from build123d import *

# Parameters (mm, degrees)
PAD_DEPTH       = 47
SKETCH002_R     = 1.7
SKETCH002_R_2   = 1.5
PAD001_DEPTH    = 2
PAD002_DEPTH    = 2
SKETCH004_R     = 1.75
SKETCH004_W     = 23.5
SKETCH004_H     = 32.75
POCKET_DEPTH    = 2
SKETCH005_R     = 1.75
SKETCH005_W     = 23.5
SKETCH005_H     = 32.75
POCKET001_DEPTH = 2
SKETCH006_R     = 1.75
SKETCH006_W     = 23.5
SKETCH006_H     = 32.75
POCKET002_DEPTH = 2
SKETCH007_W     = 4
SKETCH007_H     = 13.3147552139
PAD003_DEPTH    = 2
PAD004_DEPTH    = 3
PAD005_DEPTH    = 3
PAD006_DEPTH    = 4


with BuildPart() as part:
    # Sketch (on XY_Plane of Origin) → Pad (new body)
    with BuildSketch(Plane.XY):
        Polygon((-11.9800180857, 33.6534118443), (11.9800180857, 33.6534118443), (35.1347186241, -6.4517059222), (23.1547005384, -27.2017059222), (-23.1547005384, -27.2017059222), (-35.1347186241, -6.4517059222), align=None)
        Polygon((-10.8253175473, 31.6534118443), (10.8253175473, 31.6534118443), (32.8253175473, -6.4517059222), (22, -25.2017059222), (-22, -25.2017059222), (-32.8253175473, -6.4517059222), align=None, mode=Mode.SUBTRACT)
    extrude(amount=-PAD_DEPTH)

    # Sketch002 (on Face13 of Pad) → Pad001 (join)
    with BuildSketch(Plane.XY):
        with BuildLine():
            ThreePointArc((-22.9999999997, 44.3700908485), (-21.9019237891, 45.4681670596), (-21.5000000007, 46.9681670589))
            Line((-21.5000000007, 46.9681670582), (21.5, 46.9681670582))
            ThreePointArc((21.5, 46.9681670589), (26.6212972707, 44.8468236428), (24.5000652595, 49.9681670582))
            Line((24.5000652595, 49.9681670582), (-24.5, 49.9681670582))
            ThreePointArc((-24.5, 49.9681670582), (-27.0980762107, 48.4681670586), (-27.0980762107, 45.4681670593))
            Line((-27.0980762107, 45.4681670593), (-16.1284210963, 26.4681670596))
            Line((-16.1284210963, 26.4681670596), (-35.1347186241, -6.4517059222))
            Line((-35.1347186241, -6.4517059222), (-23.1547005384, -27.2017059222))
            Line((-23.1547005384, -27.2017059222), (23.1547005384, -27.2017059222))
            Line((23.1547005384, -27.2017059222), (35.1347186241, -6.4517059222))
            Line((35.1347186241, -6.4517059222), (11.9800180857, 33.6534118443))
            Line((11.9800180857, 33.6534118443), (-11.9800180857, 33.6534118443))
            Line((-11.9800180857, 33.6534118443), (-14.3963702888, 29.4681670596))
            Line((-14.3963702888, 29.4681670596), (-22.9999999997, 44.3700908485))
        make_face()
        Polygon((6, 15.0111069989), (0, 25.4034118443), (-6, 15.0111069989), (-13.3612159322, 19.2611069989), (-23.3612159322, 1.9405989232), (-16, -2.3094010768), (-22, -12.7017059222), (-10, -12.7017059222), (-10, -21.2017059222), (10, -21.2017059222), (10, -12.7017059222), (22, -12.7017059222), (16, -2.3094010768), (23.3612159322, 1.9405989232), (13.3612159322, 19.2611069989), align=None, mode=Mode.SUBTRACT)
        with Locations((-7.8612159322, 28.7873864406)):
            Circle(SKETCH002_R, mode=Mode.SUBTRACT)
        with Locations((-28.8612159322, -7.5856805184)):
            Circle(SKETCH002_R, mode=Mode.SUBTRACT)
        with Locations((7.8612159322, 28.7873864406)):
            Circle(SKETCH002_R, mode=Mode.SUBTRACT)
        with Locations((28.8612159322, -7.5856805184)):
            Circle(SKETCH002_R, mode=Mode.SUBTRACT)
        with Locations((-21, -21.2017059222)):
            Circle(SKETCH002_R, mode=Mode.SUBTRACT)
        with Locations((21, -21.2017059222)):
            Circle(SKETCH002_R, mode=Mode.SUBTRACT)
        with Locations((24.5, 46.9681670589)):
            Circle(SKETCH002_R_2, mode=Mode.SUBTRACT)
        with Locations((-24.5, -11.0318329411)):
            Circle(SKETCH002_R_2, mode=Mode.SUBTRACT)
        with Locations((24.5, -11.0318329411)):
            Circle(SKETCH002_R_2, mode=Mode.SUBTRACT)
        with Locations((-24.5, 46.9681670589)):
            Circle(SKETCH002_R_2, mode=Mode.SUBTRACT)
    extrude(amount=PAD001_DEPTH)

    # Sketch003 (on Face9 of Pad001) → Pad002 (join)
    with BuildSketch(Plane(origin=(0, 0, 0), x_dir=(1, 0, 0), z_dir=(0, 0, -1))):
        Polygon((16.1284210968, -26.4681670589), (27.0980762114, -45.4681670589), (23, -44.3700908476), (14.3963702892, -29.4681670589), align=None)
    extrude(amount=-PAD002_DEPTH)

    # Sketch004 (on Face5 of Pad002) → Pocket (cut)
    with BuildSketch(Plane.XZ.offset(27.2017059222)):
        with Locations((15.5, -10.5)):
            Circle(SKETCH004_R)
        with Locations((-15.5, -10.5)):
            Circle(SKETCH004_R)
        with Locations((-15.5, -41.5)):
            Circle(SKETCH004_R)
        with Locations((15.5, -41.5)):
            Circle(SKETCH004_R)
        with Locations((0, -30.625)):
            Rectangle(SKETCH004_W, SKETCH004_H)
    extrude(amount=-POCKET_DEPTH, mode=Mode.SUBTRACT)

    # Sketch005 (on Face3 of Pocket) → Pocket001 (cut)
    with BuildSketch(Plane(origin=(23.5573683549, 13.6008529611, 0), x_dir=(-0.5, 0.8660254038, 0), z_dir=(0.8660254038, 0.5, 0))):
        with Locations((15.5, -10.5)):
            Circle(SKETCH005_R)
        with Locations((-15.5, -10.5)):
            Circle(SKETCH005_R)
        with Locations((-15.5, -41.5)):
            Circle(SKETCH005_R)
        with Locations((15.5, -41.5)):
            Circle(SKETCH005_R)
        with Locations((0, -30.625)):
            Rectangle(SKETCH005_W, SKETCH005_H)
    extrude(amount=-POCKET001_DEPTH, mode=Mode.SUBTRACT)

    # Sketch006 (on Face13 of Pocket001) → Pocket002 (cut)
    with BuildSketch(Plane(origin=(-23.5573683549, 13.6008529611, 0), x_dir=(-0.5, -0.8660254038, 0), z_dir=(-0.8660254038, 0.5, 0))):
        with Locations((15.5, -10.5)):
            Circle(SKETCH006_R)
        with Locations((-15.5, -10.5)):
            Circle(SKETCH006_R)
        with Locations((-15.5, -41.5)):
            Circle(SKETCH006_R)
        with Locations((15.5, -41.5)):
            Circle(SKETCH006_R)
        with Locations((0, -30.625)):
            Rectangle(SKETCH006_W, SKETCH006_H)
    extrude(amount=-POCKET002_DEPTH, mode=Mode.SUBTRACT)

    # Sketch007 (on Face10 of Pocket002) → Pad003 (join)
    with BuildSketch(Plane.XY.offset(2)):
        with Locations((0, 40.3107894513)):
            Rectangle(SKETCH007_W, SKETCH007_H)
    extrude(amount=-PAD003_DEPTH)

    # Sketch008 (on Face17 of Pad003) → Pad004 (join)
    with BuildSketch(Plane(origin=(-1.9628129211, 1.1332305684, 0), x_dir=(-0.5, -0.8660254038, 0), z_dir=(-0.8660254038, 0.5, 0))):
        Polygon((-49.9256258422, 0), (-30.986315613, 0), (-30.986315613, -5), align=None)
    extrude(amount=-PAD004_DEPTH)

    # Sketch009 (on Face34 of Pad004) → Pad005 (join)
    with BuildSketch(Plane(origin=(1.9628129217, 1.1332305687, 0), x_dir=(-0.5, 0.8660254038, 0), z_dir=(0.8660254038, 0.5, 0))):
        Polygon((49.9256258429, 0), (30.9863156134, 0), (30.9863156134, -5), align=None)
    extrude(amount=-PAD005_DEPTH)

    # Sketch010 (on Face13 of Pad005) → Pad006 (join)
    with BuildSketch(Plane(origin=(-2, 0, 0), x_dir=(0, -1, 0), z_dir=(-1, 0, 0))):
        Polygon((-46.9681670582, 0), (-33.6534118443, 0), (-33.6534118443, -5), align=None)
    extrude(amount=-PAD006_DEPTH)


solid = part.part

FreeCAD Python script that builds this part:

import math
import FreeCAD as App
import Part
import Sketcher
from FreeCAD import Vector
Q = App.Units.Quantity

doc = App.newDocument("Part")
body = doc.addObject("PartDesign::Body", "Body")

# Sketch on XY plane
sketch1 = body.newObject("Sketcher::SketchObject", "Sketch")
sketch1.AttachmentSupport = (doc.getObject("XY_Plane"), [""])
sketch1.MapMode = "FlatFace"
sketch1.addGeometry(Part.LineSegment(Vector(12, 34, 0), Vector(-12, 34, 0)), False)
sketch1.addGeometry(Part.LineSegment(Vector(-12, 34, 0), Vector(-35, -6, 0)), False)
sketch1.addGeometry(Part.LineSegment(Vector(-35, -6, 0), Vector(-23, -27, 0)), False)
sketch1.addGeometry(Part.LineSegment(Vector(-23, -27, 0), Vector(23, -27, 0)), False)
sketch1.addGeometry(Part.LineSegment(Vector(23, -27, 0), Vector(35, -6, 0)), False)
sketch1.addGeometry(Part.LineSegment(Vector(35, -6, 0), Vector(12, 34, 0)), False)
sketch1.addGeometry(Part.LineSegment(Vector(-11, 32, 0), Vector(11, 32, 0)), False)
sketch1.addGeometry(Part.LineSegment(Vector(11, 32, 0), Vector(33, -6, 0)), False)
sketch1.addGeometry(Part.LineSegment(Vector(33, -6, 0), Vector(22, -25, 0)), False)
sketch1.addGeometry(Part.LineSegment(Vector(22, -25, 0), Vector(-22, -25, 0)), False)
sketch1.addGeometry(Part.LineSegment(Vector(-22, -25, 0), Vector(-33, -6, 0)), False)
sketch1.addGeometry(Part.LineSegment(Vector(-33, -6, 0), Vector(-11, 32, 0)), False)
sketch1.addConstraint(Sketcher.Constraint("Coincident", 0, 2, 1, 1))
sketch1.addConstraint(Sketcher.Constraint("Coincident", 1, 2, 2, 1))
sketch1.addConstraint(Sketcher.Constraint("Coincident", 2, 2, 3, 1))
sketch1.addConstraint(Sketcher.Constraint("Coincident", 3, 2, 4, 1))
sketch1.addConstraint(Sketcher.Constraint("Coincident", 4, 2, 5, 1))
sketch1.addConstraint(Sketcher.Constraint("Coincident", 5, 2, 0, 1))
sketch1.addConstraint(Sketcher.Constraint("Coincident", 6, 2, 7, 1))
sketch1.addConstraint(Sketcher.Constraint("Coincident", 7, 2, 8, 1))
sketch1.addConstraint(Sketcher.Constraint("Coincident", 8, 2, 9, 1))
sketch1.addConstraint(Sketcher.Constraint("Coincident", 9, 2, 10, 1))
sketch1.addConstraint(Sketcher.Constraint("Coincident", 10, 2, 11, 1))
sketch1.addConstraint(Sketcher.Constraint("Coincident", 11, 2, 6, 1))
sketch1.addConstraint(Sketcher.Constraint("Horizontal", 0))
sketch1.addConstraint(Sketcher.Constraint("Horizontal", 3))
sketch1.addConstraint(Sketcher.Constraint("Horizontal", 6))
sketch1.addConstraint(Sketcher.Constraint("Horizontal", 9))
sketch1.addConstraint(Sketcher.Constraint("Symmetric", 1, 2, 4, 2, -2))
sketch1.addConstraint(Sketcher.Constraint("Symmetric", 7, 2, 10, 2, -2))
sketch1.addConstraint(Sketcher.Constraint("Parallel", 1, 4))
sketch1.addConstraint(Sketcher.Constraint("Parallel", 2, 5))
sketch1.addConstraint(Sketcher.Constraint("Parallel", 5, 7))
sketch1.addConstraint(Sketcher.Constraint("Parallel", 4, 8))
sketch1.addConstraint(Sketcher.Constraint("Parallel", 7, 10))
sketch1.addConstraint(Sketcher.Constraint("Parallel", 8, 11))
sketch1.addConstraint(Sketcher.Constraint("Horizontal", 4, 2, 7, 2))
sketch1.addConstraint(Sketcher.Constraint("Equal", 2, 4))
sketch1.addConstraint(Sketcher.Constraint("DistanceX", 9, 2, 9, 1, 44.0))
sketch1.addConstraint(Sketcher.Constraint("Angle", 1, Q("-120 deg")))
sketch1.addConstraint(Sketcher.Constraint("Distance", 7, 44.0))
sketch1.addConstraint(Sketcher.Constraint("DistanceY", 6, 2, 5, 2, 2.0))
sketch1.addConstraint(Sketcher.Constraint("DistanceY", 3, 2, 8, 2, 2.0))
sketch1.addConstraint(Sketcher.Constraint("DistanceY", 2, 2, 1, 2, 20.75))
sketch1.addConstraint(Sketcher.Constraint("DistanceX", 3, 1, 3, 2, 46.309401))
sketch1.addConstraint(Sketcher.Constraint("DistanceY", -1, 1, 0, 2, 33.653412))
pad1 = body.newObject("PartDesign::Pad", "Pad")
pad1.Profile = sketch1
pad1.Length = 47
pad1.Reversed = True

# Sketch on XY plane
sketch2 = body.newObject("Sketcher::SketchObject", "Sketch001")
sketch2.AttachmentSupport = (doc.getObject("XY_Plane"), [""])
sketch2.MapMode = "FlatFace"
sketch2.addGeometry(Part.ArcOfCircle(Part.Circle(Vector(-24.5, 47, 0), Vector(0, 0, 1), 3), math.radians(-60), math.radians(0)), False)
sketch2.addGeometry(Part.LineSegment(Vector(-21.5, 47, 0), Vector(21.5, 47, 0)), False)
sketch2.addGeometry(Part.ArcOfCircle(Part.Circle(Vector(24.5, 47, 0), Vector(0, 0, 1), 3), math.radians(180), math.radians(450)), False)
sketch2.addGeometry(Part.LineSegment(Vector(24.5, 50, 0), Vector(-24.5, 50, 0)), False)
sketch2.addGeometry(Part.ArcOfCircle(Part.Circle(Vector(-24.5, 47, 0), Vector(0, 0, 1), 3), math.radians(90), math.radians(210)), False)
sketch2.addGeometry(Part.LineSegment(Vector(-27.1, 45.5, 0), Vector(-16.1, 26.5, 0)), False)
sketch2.addGeometry(Part.LineSegment(Vector(-16.1, 26.5, 0), Vector(-35.1, -6.5, 0)), False)
sketch2.addGeometry(Part.LineSegment(Vector(-35.1, -6.5, 0), Vector(-23.2, -27.2, 0)), False)
sketch2.addGeometry(Part.LineSegment(Vector(-23.2, -27.2, 0), Vector(23.2, -27.2, 0)), False)
sketch2.addGeometry(Part.LineSegment(Vector(23.2, -27.2, 0), Vector(35.1, -6.5, 0)), False)
sketch2.addGeometry(Part.LineSegment(Vector(35.1, -6.5, 0), Vector(12, 33.7, 0)), False)
sketch2.addGeometry(Part.LineSegment(Vector(12, 33.7, 0), Vector(-12, 33.7, 0)), False)
sketch2.addGeometry(Part.LineSegment(Vector(-12, 33.7, 0), Vector(-14.4, 29.5, 0)), False)
sketch2.addGeometry(Part.LineSegment(Vector(-14.4, 29.5, 0), Vector(-23, 44.4, 0)), False)
sketch2.addGeometry(Part.Circle(Vector(-21, -21.2, 0), Vector(0, 0, 1), 1.7), False)
sketch2.addGeometry(Part.Circle(Vector(-24.5, -11, 0), Vector(0, 0, 1), 1.5), False)
sketch2.addGeometry(Part.Circle(Vector(-28.9, -7.6, 0), Vector(0, 0, 1), 1.7), False)
sketch2.addGeometry(Part.LineSegment(Vector(0, 25.4, 0), Vector(6, 15, 0)), False)
sketch2.addGeometry(Part.LineSegment(Vector(6, 15, 0), Vector(13.4, 19.3, 0)), False)
sketch2.addGeometry(Part.LineSegment(Vector(13.4, 19.3, 0), Vector(23.4, 1.9, 0)), False)
sketch2.addGeometry(Part.LineSegment(Vector(23.4, 1.9, 0), Vector(16, -2.3, 0)), False)
sketch2.addGeometry(Part.LineSegment(Vector(16, -2.3, 0), Vector(22, -12.7, 0)), False)
sketch2.addGeometry(Part.LineSegment(Vector(22, -12.7, 0), Vector(10, -12.7, 0)), False)
sketch2.addGeometry(Part.LineSegment(Vector(10, -12.7, 0), Vector(10, -21.2, 0)), False)
sketch2.addGeometry(Part.LineSegment(Vector(10, -21.2, 0), Vector(-10, -21.2, 0)), False)
sketch2.addGeometry(Part.LineSegment(Vector(-10, -21.2, 0), Vector(-10, -12.7, 0)), False)
sketch2.addGeometry(Part.LineSegment(Vector(-10, -12.7, 0), Vector(-22, -12.7, 0)), False)
sketch2.addGeometry(Part.LineSegment(Vector(-22, -12.7, 0), Vector(-16, -2.3, 0)), False)
sketch2.addGeometry(Part.LineSegment(Vector(-16, -2.3, 0), Vector(-23.4, 1.9, 0)), False)
sketch2.addGeometry(Part.LineSegment(Vector(-23.4, 1.9, 0), Vector(-13.4, 19.3, 0)), False)
sketch2.addGeometry(Part.LineSegment(Vector(-13.4, 19.3, 0), Vector(-6, 15, 0)), False)
sketch2.addGeometry(Part.LineSegment(Vector(-6, 15, 0), Vector(0, 25.4, 0)), False)
sketch2.addGeometry(Part.Circle(Vector(21, -21.2, 0), Vector(0, 0, 1), 1.7), False)
sketch2.addGeometry(Part.Circle(Vector(24.5, -11, 0), Vector(0, 0, 1), 1.5), False)
sketch2.addGeometry(Part.Circle(Vector(28.9, -7.6, 0), Vector(0, 0, 1), 1.7), False)
sketch2.addGeometry(Part.Circle(Vector(-7.9, 28.8, 0), Vector(0, 0, 1), 1.7), False)
sketch2.addGeometry(Part.Circle(Vector(-24.5, 47, 0), Vector(0, 0, 1), 1.5), False)
sketch2.addGeometry(Part.Circle(Vector(7.9, 28.8, 0), Vector(0, 0, 1), 1.7), False)
sketch2.addGeometry(Part.Circle(Vector(24.5, 47, 0), Vector(0, 0, 1), 1.5), False)
sketch2.addConstraint(Sketcher.Constraint("Coincident", 0, 2, 1, 1))
sketch2.addConstraint(Sketcher.Constraint("Coincident", 1, 2, 2, 1))
sketch2.addConstraint(Sketcher.Constraint("Coincident", 2, 2, 3, 1))
sketch2.addConstraint(Sketcher.Constraint("Tangent", 3, 2, 4, 1))
sketch2.addConstraint(Sketcher.Constraint("Tangent", 4, 2, 5, 1))
sketch2.addConstraint(Sketcher.Constraint("Coincident", 5, 2, 6, 1))
sketch2.addConstraint(Sketcher.Constraint("Coincident", 6, 2, 7, 1))
sketch2.addConstraint(Sketcher.Constraint("Coincident", 7, 2, 8, 1))
sketch2.addConstraint(Sketcher.Constraint("Coincident", 8, 2, 9, 1))
sketch2.addConstraint(Sketcher.Constraint("Coincident", 9, 2, 10, 1))
sketch2.addConstraint(Sketcher.Constraint("Coincident", 10, 2, 11, 1))
sketch2.addConstraint(Sketcher.Constraint("Coincident", 11, 2, 12, 1))
sketch2.addConstraint(Sketcher.Constraint("Coincident", 12, 2, 13, 1))
sketch2.addConstraint(Sketcher.Constraint("Coincident", 13, 2, 0, 1))
sketch2.addConstraint(Sketcher.Constraint("Coincident", 17, 2, 18, 1))
sketch2.addConstraint(Sketcher.Constraint("Coincident", 18, 2, 19, 1))
sketch2.addConstraint(Sketcher.Constraint("Coincident", 19, 2, 20, 1))
sketch2.addConstraint(Sketcher.Constraint("Coincident", 20, 2, 21, 1))
sketch2.addConstraint(Sketcher.Constraint("Coincident", 21, 2, 22, 1))
sketch2.addConstraint(Sketcher.Constraint("Coincident", 22, 2, 23, 1))
sketch2.addConstraint(Sketcher.Constraint("Coincident", 23, 2, 24, 1))
sketch2.addConstraint(Sketcher.Constraint("Coincident", 24, 2, 25, 1))
sketch2.addConstraint(Sketcher.Constraint("Coincident", 25, 2, 26, 1))
sketch2.addConstraint(Sketcher.Constraint("Coincident", 26, 2, 27, 1))
sketch2.addConstraint(Sketcher.Constraint("Coincident", 27, 2, 28, 1))
sketch2.addConstraint(Sketcher.Constraint("Coincident", 28, 2, 29, 1))
sketch2.addConstraint(Sketcher.Constraint("Coincident", 29, 2, 30, 1))
sketch2.addConstraint(Sketcher.Constraint("Coincident", 30, 2, 31, 1))
sketch2.addConstraint(Sketcher.Constraint("Coincident", 31, 2, 17, 1))
sketch2.addConstraint(Sketcher.Constraint("Horizontal", 1))
sketch2.addConstraint(Sketcher.Constraint("Horizontal", 3))
sketch2.addConstraint(Sketcher.Constraint("Horizontal", 8))
sketch2.addConstraint(Sketcher.Constraint("Horizontal", 11))
sketch2.addConstraint(Sketcher.Constraint("Horizontal", 22))
sketch2.addConstraint(Sketcher.Constraint("Vertical", 23))
sketch2.addConstraint(Sketcher.Constraint("Horizontal", 24))
sketch2.addConstraint(Sketcher.Constraint("Vertical", 25))
sketch2.addConstraint(Sketcher.Constraint("Horizontal", 26))
sketch2.addConstraint(Sketcher.Constraint("Coincident", 4, 3, 0, 3))
sketch2.addConstraint(Sketcher.Constraint("Coincident", 36, 3, 0, 3))
sketch2.addConstraint(Sketcher.Constraint("Coincident", 38, 3, 2, 3))
sketch2.addConstraint(Sketcher.Constraint("Equal", 0, 2))
sketch2.addConstraint(Sketcher.Constraint("Equal", 2, 4))
sketch2.addConstraint(Sketcher.Constraint("Equal", 14, 16))
sketch2.addConstraint(Sketcher.Constraint("Equal", 16, 32))
sketch2.addConstraint(Sketcher.Constraint("Equal", 15, 33))
sketch2.addConstraint(Sketcher.Constraint("Equal", 32, 34))
sketch2.addConstraint(Sketcher.Constraint("Equal", 34, 35))
sketch2.addConstraint(Sketcher.Constraint("Equal", 33, 36))
sketch2.addConstraint(Sketcher.Constraint("Equal", 35, 37))
sketch2.addConstraint(Sketcher.Constraint("Equal", 36, 38))
sketch2.addConstraint(Sketcher.Constraint("Symmetric", 14, 3, 32, 3, -2))
sketch2.addConstraint(Sketcher.Constraint("Symmetric", 15, 3, 33, 3, -2))
sketch2.addConstraint(Sketcher.Constraint("Symmetric", 16, 3, 34, 3, -2))
sketch2.addConstraint(Sketcher.Constraint("Symmetric", 35, 3, 37, 3, -2))
sketch2.addConstraint(Sketcher.Constraint("Symmetric", 6, 2, 9, 2, -2))
sketch2.addConstraint(Sketcher.Constraint("Symmetric", 22, 2, 25, 2, -2))
sketch2.addConstraint(Sketcher.Constraint("Symmetric", 20, 2, 27, 2, -2))
sketch2.addConstraint(Sketcher.Constraint("Symmetric", 19, 2, 28, 2, -2))
sketch2.addConstraint(Sketcher.Constraint("Symmetric", 18, 2, 29, 2, -2))
sketch2.addConstraint(Sketcher.Constraint("Symmetric", 17, 2, 30, 2, -2))
sketch2.addConstraint(Sketcher.Constraint("PointOnObject", 31, 2, -2))
sketch2.addConstraint(Sketcher.Constraint("Parallel", 5, 7))
sketch2.addConstraint(Sketcher.Constraint("Parallel", 6, 9))
sketch2.addConstraint(Sketcher.Constraint("Parallel", 7, 10))
sketch2.addConstraint(Sketcher.Constraint("Parallel", 9, 12))
sketch2.addConstraint(Sketcher.Constraint("Parallel", 10, 13))
sketch2.addConstraint(Sketcher.Constraint("Parallel", 13, 17))
sketch2.addConstraint(Sketcher.Constraint("Perpendicular", 17, 18))
sketch2.addConstraint(Sketcher.Constraint("Perpendicular", 18, 19))
sketch2.addConstraint(Sketcher.Constraint("Perpendicular", 19, 20))
sketch2.addConstraint(Sketcher.Constraint("Perpendicular", 20, 21))
sketch2.addConstraint(Sketcher.Constraint("Parallel", 12, 27))
sketch2.addConstraint(Sketcher.Constraint("Perpendicular", 27, 28))
sketch2.addConstraint(Sketcher.Constraint("Horizontal", 38, 3, 0, 2))
sketch2.addConstraint(Sketcher.Constraint("Horizontal", 32, 3, 23, 2))
sketch2.addConstraint(Sketcher.Constraint("Vertical", 4, 3, 15, 3))
sketch2.addConstraint(Sketcher.Constraint("Vertical", 2, 3, 33, 3))
sketch2.addConstraint(Sketcher.Constraint("Equal", 18, 20))
sketch2.addConstraint(Sketcher.Constraint("Equal", 17, 21))
sketch2.addConstraint(Sketcher.Constraint("Diameter", 15, 3.0))
sketch2.addConstraint(Sketcher.Constraint("Radius", 0, 3.0))
sketch2.addConstraint(Sketcher.Constraint("Diameter", 14, 3.4))
sketch2.addConstraint(Sketcher.Constraint("DistanceX", 1, 1, 1, 2, 43.0))
sketch2.addConstraint(Sketcher.Constraint("DistanceX", 22, 2, 22, 1, 12.0))
sketch2.addConstraint(Sketcher.Constraint("DistanceX", 24, 2, 24, 1, 20.0))
sketch2.addConstraint(Sketcher.Constraint("Angle", 5, Q("-60 deg")))
sketch2.addConstraint(Sketcher.Constraint("Distance", 17, 12.0))
sketch2.addConstraint(Sketcher.Constraint("DistanceY", 23, 2, 23, 1, 8.5))
sketch2.addConstraint(Sketcher.Constraint("DistanceX", 14, 3, -1, 1, 21.0))
sketch2.addConstraint(Sketcher.Constraint("DistanceX", 13, 2, -1, 1, 23.0))
sketch2.addConstraint(Sketcher.Constraint("DistanceY", 15, 3, 0, 3, 58.0))
sketch2.addConstraint(Sketcher.Constraint("DistanceX", 16, 3, 35, 3, 21.0))
sketch2.addConstraint(Sketcher.Constraint("DistanceY", 5, 2, 4, 2, 19.0))
sketch2.addConstraint(Sketcher.Constraint("DistanceY", 7, 2, 14, 3, 6.0))
sketch2.addConstraint(Sketcher.Constraint("DistanceY", 5, 2, 12, 2, 3.0))
sketch2.addConstraint(Sketcher.Constraint("Distance", 18, 8.5))
sketch2.addConstraint(Sketcher.Constraint("DistanceX", 37, 3, 18, 2, 5.5))
sketch2.addConstraint(Sketcher.Constraint("DistanceY", 14, 3, 6, 2, 14.75))
sketch2.addConstraint(Sketcher.Constraint("DistanceY", 31, 2, 10, 2, 8.25))
sketch2.addConstraint(Sketcher.Constraint("DistanceX", 8, 1, 8, 2, 46.309401))
sketch2.addConstraint(Sketcher.Constraint("DistanceY", -1, 1, 19, 2, 1.940599))
sketch2.addConstraint(Sketcher.Constraint("DistanceX", 3, 2, 3, 1, 49.000065))
sketch2.addConstraint(Sketcher.Constraint("DistanceY", 16, 3, -1, 1, 7.585681))
sketch2.addConstraint(Sketcher.Constraint("DistanceY", 35, 3, 0, 3, 18.180781))
pad2 = body.newObject("PartDesign::Pad", "Pad001")
pad2.Profile = sketch2
pad2.Length = 2

# Sketch on XY plane
sketch3 = body.newObject("Sketcher::SketchObject", "Sketch002")
sketch3.AttachmentSupport = (doc.getObject("XY_Plane"), [""])
sketch3.MapMode = "FlatFace"
sketch3.addGeometry(Part.LineSegment(Vector(27.1, 45.5, 0), Vector(16.1, 26.5, 0)), False)
sketch3.addGeometry(Part.LineSegment(Vector(16.1, 26.5, 0), Vector(14.4, 29.5, 0)), False)
sketch3.addGeometry(Part.LineSegment(Vector(14.4, 29.5, 0), Vector(23, 44.4, 0)), False)
sketch3.addGeometry(Part.LineSegment(Vector(23, 44.4, 0), Vector(27.1, 45.5, 0)), False)
sketch3.addConstraint(Sketcher.Constraint("Coincident", 0, 2, 1, 1))
sketch3.addConstraint(Sketcher.Constraint("Coincident", 1, 2, 2, 1))
sketch3.addConstraint(Sketcher.Constraint("Coincident", 2, 2, 3, 1))
sketch3.addConstraint(Sketcher.Constraint("Coincident", 3, 2, 0, 1))
sketch3.addConstraint(Sketcher.Constraint("Parallel", 0, 2))
sketch3.addConstraint(Sketcher.Constraint("Angle", 0, Q("-120 deg")))
sketch3.addConstraint(Sketcher.Constraint("Angle", 1, Q("120 deg")))
sketch3.addConstraint(Sketcher.Constraint("Angle", 3, Q("15 deg")))
sketch3.addConstraint(Sketcher.Constraint("DistanceX", -1, 1, 2, 2, 23.0))
sketch3.addConstraint(Sketcher.Constraint("DistanceY", 0, 2, 1, 2, 3.0))
sketch3.addConstraint(Sketcher.Constraint("DistanceY", 1, 2, 3, 2, 16.0))
sketch3.addConstraint(Sketcher.Constraint("DistanceY", -1, 1, 2, 2, 44.370091))
pad3 = body.newObject("PartDesign::Pad", "Pad002")
pad3.Profile = sketch3
pad3.Length = 2

# Sketch on XZ plane
sketch4 = body.newObject("Sketcher::SketchObject", "Sketch003")
sketch4.AttachmentSupport = (doc.getObject("XZ_Plane"), [""])
sketch4.MapMode = "FlatFace"
sketch4.AttachmentOffset = App.Placement(Vector(0, 0, 27.201706), App.Rotation())
sketch4.addGeometry(Part.Circle(Vector(15.5, -10.5, 0), Vector(0, 0, 1), 1.8), False)
sketch4.addGeometry(Part.Circle(Vector(-15.5, -10.5, 0), Vector(0, 0, 1), 1.8), False)
sketch4.addGeometry(Part.Circle(Vector(-15.5, -41.5, 0), Vector(0, 0, 1), 1.8), False)
sketch4.addGeometry(Part.Circle(Vector(15.5, -41.5, 0), Vector(0, 0, 1), 1.8), False)
sketch4.addGeometry(Part.LineSegment(Vector(-11.8, -14.2, 0), Vector(-11.8, -47, 0)), False)
sketch4.addGeometry(Part.LineSegment(Vector(-11.8, -47, 0), Vector(11.8, -47, 0)), False)
sketch4.addGeometry(Part.LineSegment(Vector(11.8, -47, 0), Vector(11.8, -14.2, 0)), False)
sketch4.addGeometry(Part.LineSegment(Vector(11.8, -14.2, 0), Vector(-11.8, -14.2, 0)), False)
sketch4.addConstraint(Sketcher.Constraint("Coincident", 4, 2, 5, 1))
sketch4.addConstraint(Sketcher.Constraint("Coincident", 5, 2, 6, 1))
sketch4.addConstraint(Sketcher.Constraint("Coincident", 6, 2, 7, 1))
sketch4.addConstraint(Sketcher.Constraint("Coincident", 7, 2, 4, 1))
sketch4.addConstraint(Sketcher.Constraint("Vertical", 4))
sketch4.addConstraint(Sketcher.Constraint("Horizontal", 5))
sketch4.addConstraint(Sketcher.Constraint("Vertical", 6))
sketch4.addConstraint(Sketcher.Constraint("Horizontal", 7))
sketch4.addConstraint(Sketcher.Constraint("Equal", 0, 1))
sketch4.addConstraint(Sketcher.Constraint("Equal", 1, 2))
sketch4.addConstraint(Sketcher.Constraint("Equal", 2, 3))
sketch4.addConstraint(Sketcher.Constraint("Symmetric", 0, 3, 1, 3, -2))
sketch4.addConstraint(Sketcher.Constraint("Symmetric", 2, 3, 3, 3, -2))
sketch4.addConstraint(Sketcher.Constraint("Vertical", 1, 3, 2, 3))
sketch4.addConstraint(Sketcher.Constraint("Diameter", 0, 3.5))
sketch4.addConstraint(Sketcher.Constraint("DistanceX", 5, 1, 5, 2, 23.5))
sketch4.addConstraint(Sketcher.Constraint("DistanceY", 4, 2, -1, 1, 47.0))
sketch4.addConstraint(Sketcher.Constraint("DistanceX", 1, 3, 0, 3, 31.0))
sketch4.addConstraint(Sketcher.Constraint("DistanceY", 2, 3, 1, 3, 31.0))
sketch4.addConstraint(Sketcher.Constraint("DistanceY", 4, 2, 4, 1, 32.75))
sketch4.addConstraint(Sketcher.Constraint("DistanceY", 0, 3, -1, 1, 10.5))
sketch4.addConstraint(Sketcher.Constraint("DistanceX", 4, 2, -1, 1, 11.75))
pocket1 = body.newObject("PartDesign::Pocket", "Pocket")
pocket1.Profile = sketch4
pocket1.Length = 2

# Sketch on an angled plane
sketch5 = body.newObject("Sketcher::SketchObject", "Sketch004")
sketch5.Placement = App.Placement(Vector(23.557368, 13.600853, 0), App.Rotation(Vector(-0.5, 0.866025404, 0), Vector(0, 0, 1), Vector(0.866025404, 0.5, 0), "ZXY"))
sketch5.addGeometry(Part.Circle(Vector(15.5, -10.5, 0), Vector(0, 0, 1), 1.8), False)
sketch5.addGeometry(Part.Circle(Vector(-15.5, -10.5, 0), Vector(0, 0, 1), 1.8), False)
sketch5.addGeometry(Part.Circle(Vector(-15.5, -41.5, 0), Vector(0, 0, 1), 1.8), False)
sketch5.addGeometry(Part.Circle(Vector(15.5, -41.5, 0), Vector(0, 0, 1), 1.8), False)
sketch5.addGeometry(Part.LineSegment(Vector(-11.8, -14.3, 0), Vector(-11.8, -47, 0)), False)
sketch5.addGeometry(Part.LineSegment(Vector(-11.8, -47, 0), Vector(11.8, -47, 0)), False)
sketch5.addGeometry(Part.LineSegment(Vector(11.8, -47, 0), Vector(11.8, -14.3, 0)), False)
sketch5.addGeometry(Part.LineSegment(Vector(11.8, -14.3, 0), Vector(-11.8, -14.3, 0)), False)
sketch5.addConstraint(Sketcher.Constraint("Coincident", 4, 2, 5, 1))
sketch5.addConstraint(Sketcher.Constraint("Coincident", 5, 2, 6, 1))
sketch5.addConstraint(Sketcher.Constraint("Coincident", 6, 2, 7, 1))
sketch5.addConstraint(Sketcher.Constraint("Coincident", 7, 2, 4, 1))
sketch5.addConstraint(Sketcher.Constraint("Vertical", 4))
sketch5.addConstraint(Sketcher.Constraint("Horizontal", 5))
sketch5.addConstraint(Sketcher.Constraint("Vertical", 6))
sketch5.addConstraint(Sketcher.Constraint("Horizontal", 7))
sketch5.addConstraint(Sketcher.Constraint("Equal", 0, 1))
sketch5.addConstraint(Sketcher.Constraint("Equal", 1, 2))
sketch5.addConstraint(Sketcher.Constraint("Equal", 2, 3))
sketch5.addConstraint(Sketcher.Constraint("Symmetric", 0, 3, 1, 3, -2))
sketch5.addConstraint(Sketcher.Constraint("Symmetric", 2, 3, 3, 3, -2))
sketch5.addConstraint(Sketcher.Constraint("Vertical", 1, 3, 2, 3))
sketch5.addConstraint(Sketcher.Constraint("Diameter", 0, 3.5))
sketch5.addConstraint(Sketcher.Constraint("DistanceX", 5, 1, 5, 2, 23.5))
sketch5.addConstraint(Sketcher.Constraint("DistanceY", 4, 2, -1, 1, 47.0))
sketch5.addConstraint(Sketcher.Constraint("DistanceX", 1, 3, 0, 3, 31.0))
sketch5.addConstraint(Sketcher.Constraint("DistanceY", 2, 3, 1, 3, 31.0))
sketch5.addConstraint(Sketcher.Constraint("DistanceY", 4, 2, 4, 1, 32.75))
sketch5.addConstraint(Sketcher.Constraint("DistanceY", 0, 3, -1, 1, 10.5))
sketch5.addConstraint(Sketcher.Constraint("DistanceX", 4, 2, -1, 1, 11.75))
pocket2 = body.newObject("PartDesign::Pocket", "Pocket001")
pocket2.Profile = sketch5
pocket2.Length = 2

# Sketch on an angled plane
sketch6 = body.newObject("Sketcher::SketchObject", "Sketch005")
sketch6.Placement = App.Placement(Vector(-23.557368, 13.600853, 0), App.Rotation(Vector(-0.5, -0.866025404, 0), Vector(0, 0, 1), Vector(-0.866025404, 0.5, 0), "ZXY"))
sketch6.addGeometry(Part.Circle(Vector(15.5, -10.5, 0), Vector(0, 0, 1), 1.8), False)
sketch6.addGeometry(Part.Circle(Vector(-15.5, -10.5, 0), Vector(0, 0, 1), 1.8), False)
sketch6.addGeometry(Part.Circle(Vector(-15.5, -41.5, 0), Vector(0, 0, 1), 1.8), False)
sketch6.addGeometry(Part.Circle(Vector(15.5, -41.5, 0), Vector(0, 0, 1), 1.8), False)
sketch6.addGeometry(Part.LineSegment(Vector(-11.8, -14.3, 0), Vector(-11.8, -47, 0)), False)
sketch6.addGeometry(Part.LineSegment(Vector(-11.8, -47, 0), Vector(11.8, -47, 0)), False)
sketch6.addGeometry(Part.LineSegment(Vector(11.8, -47, 0), Vector(11.8, -14.3, 0)), False)
sketch6.addGeometry(Part.LineSegment(Vector(11.8, -14.3, 0), Vector(-11.8, -14.3, 0)), False)
sketch6.addConstraint(Sketcher.Constraint("Coincident", 4, 2, 5, 1))
sketch6.addConstraint(Sketcher.Constraint("Coincident", 5, 2, 6, 1))
sketch6.addConstraint(Sketcher.Constraint("Coincident", 6, 2, 7, 1))
sketch6.addConstraint(Sketcher.Constraint("Coincident", 7, 2, 4, 1))
sketch6.addConstraint(Sketcher.Constraint("Vertical", 4))
sketch6.addConstraint(Sketcher.Constraint("Horizontal", 5))
sketch6.addConstraint(Sketcher.Constraint("Vertical", 6))
sketch6.addConstraint(Sketcher.Constraint("Horizontal", 7))
sketch6.addConstraint(Sketcher.Constraint("Equal", 0, 1))
sketch6.addConstraint(Sketcher.Constraint("Equal", 1, 2))
sketch6.addConstraint(Sketcher.Constraint("Equal", 2, 3))
sketch6.addConstraint(Sketcher.Constraint("Symmetric", 0, 3, 1, 3, -2))
sketch6.addConstraint(Sketcher.Constraint("Symmetric", 2, 3, 3, 3, -2))
sketch6.addConstraint(Sketcher.Constraint("Vertical", 1, 3, 2, 3))
sketch6.addConstraint(Sketcher.Constraint("Diameter", 0, 3.5))
sketch6.addConstraint(Sketcher.Constraint("DistanceX", 5, 1, 5, 2, 23.5))
sketch6.addConstraint(Sketcher.Constraint("DistanceY", 4, 2, -1, 1, 47.0))
sketch6.addConstraint(Sketcher.Constraint("DistanceX", 1, 3, 0, 3, 31.0))
sketch6.addConstraint(Sketcher.Constraint("DistanceY", 2, 3, 1, 3, 31.0))
sketch6.addConstraint(Sketcher.Constraint("DistanceY", 4, 2, 4, 1, 32.75))
sketch6.addConstraint(Sketcher.Constraint("DistanceY", 0, 3, -1, 1, 10.5))
sketch6.addConstraint(Sketcher.Constraint("DistanceX", 4, 2, -1, 1, 11.75))
pocket3 = body.newObject("PartDesign::Pocket", "Pocket002")
pocket3.Profile = sketch6
pocket3.Length = 2

# Sketch on XY plane
sketch7 = body.newObject("Sketcher::SketchObject", "Sketch006")
sketch7.AttachmentSupport = (doc.getObject("XY_Plane"), [""])
sketch7.MapMode = "FlatFace"
sketch7.AttachmentOffset = App.Placement(Vector(0, 0, 2), App.Rotation())
sketch7.addGeometry(Part.LineSegment(Vector(-2, 47, 0), Vector(-2, 33.7, 0)), False)
sketch7.addGeometry(Part.LineSegment(Vector(-2, 33.7, 0), Vector(2, 33.7, 0)), False)
sketch7.addGeometry(Part.LineSegment(Vector(2, 33.7, 0), Vector(2, 47, 0)), False)
sketch7.addGeometry(Part.LineSegment(Vector(2, 47, 0), Vector(-2, 47, 0)), False)
sketch7.addConstraint(Sketcher.Constraint("Coincident", 0, 2, 1, 1))
sketch7.addConstraint(Sketcher.Constraint("Coincident", 1, 2, 2, 1))
sketch7.addConstraint(Sketcher.Constraint("Coincident", 2, 2, 3, 1))
sketch7.addConstraint(Sketcher.Constraint("Coincident", 3, 2, 0, 1))
sketch7.addConstraint(Sketcher.Constraint("Vertical", 0))
sketch7.addConstraint(Sketcher.Constraint("Horizontal", 1))
sketch7.addConstraint(Sketcher.Constraint("Vertical", 2))
sketch7.addConstraint(Sketcher.Constraint("Horizontal", 3))
sketch7.addConstraint(Sketcher.Constraint("DistanceX", 1, 1, 1, 2, 4.0))
sketch7.addConstraint(Sketcher.Constraint("DistanceX", 0, 2, -1, 1, 2.0))
sketch7.addConstraint(Sketcher.Constraint("DistanceY", 0, 2, 0, 1, 13.314755))
sketch7.addConstraint(Sketcher.Constraint("DistanceY", -1, 1, 0, 2, 33.653412))
pad4 = body.newObject("PartDesign::Pad", "Pad003")
pad4.Profile = sketch7
pad4.Length = 2
pad4.Reversed = True

# Sketch on an angled plane
sketch8 = body.newObject("Sketcher::SketchObject", "Sketch007")
sketch8.Placement = App.Placement(Vector(-1.962813, 1.133231, 0), App.Rotation(Vector(-0.5, -0.866025404, 0), Vector(0, 0, 1), Vector(-0.866025404, 0.5, 0), "ZXY"))
sketch8.addGeometry(Part.LineSegment(Vector(-31, 0, 0), Vector(-50, 0, 0)), False)
sketch8.addGeometry(Part.LineSegment(Vector(-50, 0, 0), Vector(-31, -5, 0)), False)
sketch8.addGeometry(Part.LineSegment(Vector(-31, -5, 0), Vector(-31, 0, 0)), False)
sketch8.addConstraint(Sketcher.Constraint("Coincident", 0, 2, 1, 1))
sketch8.addConstraint(Sketcher.Constraint("Coincident", 1, 2, 2, 1))
sketch8.addConstraint(Sketcher.Constraint("Coincident", 2, 2, 0, 1))
sketch8.addConstraint(Sketcher.Constraint("Horizontal", 0))
sketch8.addConstraint(Sketcher.Constraint("Vertical", 2))
sketch8.addConstraint(Sketcher.Constraint("PointOnObject", 0, 2, -1))
sketch8.addConstraint(Sketcher.Constraint("DistanceY", 2, 1, 2, 2, 5.0))
sketch8.addConstraint(Sketcher.Constraint("DistanceX", 0, 2, 0, 1, 18.93931))
sketch8.addConstraint(Sketcher.Constraint("DistanceX", 0, 2, -1, 1, 49.925626))
pad5 = body.newObject("PartDesign::Pad", "Pad004")
pad5.Profile = sketch8
pad5.Length = 3
pad5.Reversed = True

# Sketch on an angled plane
sketch9 = body.newObject("Sketcher::SketchObject", "Sketch008")
sketch9.Placement = App.Placement(Vector(1.962813, 1.133231, 0), App.Rotation(Vector(-0.5, 0.866025404, 0), Vector(0, 0, 1), Vector(0.866025404, 0.5, 0), "ZXY"))
sketch9.addGeometry(Part.LineSegment(Vector(50, 0, 0), Vector(31, 0, 0)), False)
sketch9.addGeometry(Part.LineSegment(Vector(31, 0, 0), Vector(31, -5, 0)), False)
sketch9.addGeometry(Part.LineSegment(Vector(31, -5, 0), Vector(50, 0, 0)), False)
sketch9.addConstraint(Sketcher.Constraint("Coincident", 0, 2, 1, 1))
sketch9.addConstraint(Sketcher.Constraint("Coincident", 1, 2, 2, 1))
sketch9.addConstraint(Sketcher.Constraint("Coincident", 2, 2, 0, 1))
sketch9.addConstraint(Sketcher.Constraint("Horizontal", 0))
sketch9.addConstraint(Sketcher.Constraint("Vertical", 1))
sketch9.addConstraint(Sketcher.Constraint("PointOnObject", 0, 2, -1))
sketch9.addConstraint(Sketcher.Constraint("DistanceY", 1, 2, 1, 1, 5.0))
sketch9.addConstraint(Sketcher.Constraint("DistanceX", 0, 2, 0, 1, 18.93931))
sketch9.addConstraint(Sketcher.Constraint("DistanceX", -1, 1, 0, 2, 30.986316))
pad6 = body.newObject("PartDesign::Pad", "Pad005")
pad6.Profile = sketch9
pad6.Length = 3
pad6.Reversed = True

# Sketch on YZ plane
sketch10 = body.newObject("Sketcher::SketchObject", "Sketch009")
sketch10.AttachmentSupport = (doc.getObject("YZ_Plane"), [""])
sketch10.MapMode = "FlatFace"
sketch10.AttachmentOffset = App.Placement(Vector(0, 0, -2), App.Rotation())
sketch10.addGeometry(Part.LineSegment(Vector(34, 0, 0), Vector(47, 0, 0)), False)
sketch10.addGeometry(Part.LineSegment(Vector(47, 0, 0), Vector(34, -5, 0)), False)
sketch10.addGeometry(Part.LineSegment(Vector(34, -5, 0), Vector(34, 0, 0)), False)
sketch10.addConstraint(Sketcher.Constraint("Coincident", 0, 2, 1, 1))
sketch10.addConstraint(Sketcher.Constraint("Coincident", 1, 2, 2, 1))
sketch10.addConstraint(Sketcher.Constraint("Coincident", 2, 2, 0, 1))
sketch10.addConstraint(Sketcher.Constraint("Horizontal", 0))
sketch10.addConstraint(Sketcher.Constraint("Vertical", 2))
sketch10.addConstraint(Sketcher.Constraint("PointOnObject", 0, 2, -1))
sketch10.addConstraint(Sketcher.Constraint("DistanceY", 2, 1, 2, 2, 5.0))
sketch10.addConstraint(Sketcher.Constraint("DistanceX", 0, 1, 0, 2, 13.314755))
sketch10.addConstraint(Sketcher.Constraint("DistanceX", -1, 1, 1, 2, 33.653412))
pad7 = body.newObject("PartDesign::Pad", "Pad006")
pad7.Profile = sketch10
pad7.Length = 4

doc.recompute()
